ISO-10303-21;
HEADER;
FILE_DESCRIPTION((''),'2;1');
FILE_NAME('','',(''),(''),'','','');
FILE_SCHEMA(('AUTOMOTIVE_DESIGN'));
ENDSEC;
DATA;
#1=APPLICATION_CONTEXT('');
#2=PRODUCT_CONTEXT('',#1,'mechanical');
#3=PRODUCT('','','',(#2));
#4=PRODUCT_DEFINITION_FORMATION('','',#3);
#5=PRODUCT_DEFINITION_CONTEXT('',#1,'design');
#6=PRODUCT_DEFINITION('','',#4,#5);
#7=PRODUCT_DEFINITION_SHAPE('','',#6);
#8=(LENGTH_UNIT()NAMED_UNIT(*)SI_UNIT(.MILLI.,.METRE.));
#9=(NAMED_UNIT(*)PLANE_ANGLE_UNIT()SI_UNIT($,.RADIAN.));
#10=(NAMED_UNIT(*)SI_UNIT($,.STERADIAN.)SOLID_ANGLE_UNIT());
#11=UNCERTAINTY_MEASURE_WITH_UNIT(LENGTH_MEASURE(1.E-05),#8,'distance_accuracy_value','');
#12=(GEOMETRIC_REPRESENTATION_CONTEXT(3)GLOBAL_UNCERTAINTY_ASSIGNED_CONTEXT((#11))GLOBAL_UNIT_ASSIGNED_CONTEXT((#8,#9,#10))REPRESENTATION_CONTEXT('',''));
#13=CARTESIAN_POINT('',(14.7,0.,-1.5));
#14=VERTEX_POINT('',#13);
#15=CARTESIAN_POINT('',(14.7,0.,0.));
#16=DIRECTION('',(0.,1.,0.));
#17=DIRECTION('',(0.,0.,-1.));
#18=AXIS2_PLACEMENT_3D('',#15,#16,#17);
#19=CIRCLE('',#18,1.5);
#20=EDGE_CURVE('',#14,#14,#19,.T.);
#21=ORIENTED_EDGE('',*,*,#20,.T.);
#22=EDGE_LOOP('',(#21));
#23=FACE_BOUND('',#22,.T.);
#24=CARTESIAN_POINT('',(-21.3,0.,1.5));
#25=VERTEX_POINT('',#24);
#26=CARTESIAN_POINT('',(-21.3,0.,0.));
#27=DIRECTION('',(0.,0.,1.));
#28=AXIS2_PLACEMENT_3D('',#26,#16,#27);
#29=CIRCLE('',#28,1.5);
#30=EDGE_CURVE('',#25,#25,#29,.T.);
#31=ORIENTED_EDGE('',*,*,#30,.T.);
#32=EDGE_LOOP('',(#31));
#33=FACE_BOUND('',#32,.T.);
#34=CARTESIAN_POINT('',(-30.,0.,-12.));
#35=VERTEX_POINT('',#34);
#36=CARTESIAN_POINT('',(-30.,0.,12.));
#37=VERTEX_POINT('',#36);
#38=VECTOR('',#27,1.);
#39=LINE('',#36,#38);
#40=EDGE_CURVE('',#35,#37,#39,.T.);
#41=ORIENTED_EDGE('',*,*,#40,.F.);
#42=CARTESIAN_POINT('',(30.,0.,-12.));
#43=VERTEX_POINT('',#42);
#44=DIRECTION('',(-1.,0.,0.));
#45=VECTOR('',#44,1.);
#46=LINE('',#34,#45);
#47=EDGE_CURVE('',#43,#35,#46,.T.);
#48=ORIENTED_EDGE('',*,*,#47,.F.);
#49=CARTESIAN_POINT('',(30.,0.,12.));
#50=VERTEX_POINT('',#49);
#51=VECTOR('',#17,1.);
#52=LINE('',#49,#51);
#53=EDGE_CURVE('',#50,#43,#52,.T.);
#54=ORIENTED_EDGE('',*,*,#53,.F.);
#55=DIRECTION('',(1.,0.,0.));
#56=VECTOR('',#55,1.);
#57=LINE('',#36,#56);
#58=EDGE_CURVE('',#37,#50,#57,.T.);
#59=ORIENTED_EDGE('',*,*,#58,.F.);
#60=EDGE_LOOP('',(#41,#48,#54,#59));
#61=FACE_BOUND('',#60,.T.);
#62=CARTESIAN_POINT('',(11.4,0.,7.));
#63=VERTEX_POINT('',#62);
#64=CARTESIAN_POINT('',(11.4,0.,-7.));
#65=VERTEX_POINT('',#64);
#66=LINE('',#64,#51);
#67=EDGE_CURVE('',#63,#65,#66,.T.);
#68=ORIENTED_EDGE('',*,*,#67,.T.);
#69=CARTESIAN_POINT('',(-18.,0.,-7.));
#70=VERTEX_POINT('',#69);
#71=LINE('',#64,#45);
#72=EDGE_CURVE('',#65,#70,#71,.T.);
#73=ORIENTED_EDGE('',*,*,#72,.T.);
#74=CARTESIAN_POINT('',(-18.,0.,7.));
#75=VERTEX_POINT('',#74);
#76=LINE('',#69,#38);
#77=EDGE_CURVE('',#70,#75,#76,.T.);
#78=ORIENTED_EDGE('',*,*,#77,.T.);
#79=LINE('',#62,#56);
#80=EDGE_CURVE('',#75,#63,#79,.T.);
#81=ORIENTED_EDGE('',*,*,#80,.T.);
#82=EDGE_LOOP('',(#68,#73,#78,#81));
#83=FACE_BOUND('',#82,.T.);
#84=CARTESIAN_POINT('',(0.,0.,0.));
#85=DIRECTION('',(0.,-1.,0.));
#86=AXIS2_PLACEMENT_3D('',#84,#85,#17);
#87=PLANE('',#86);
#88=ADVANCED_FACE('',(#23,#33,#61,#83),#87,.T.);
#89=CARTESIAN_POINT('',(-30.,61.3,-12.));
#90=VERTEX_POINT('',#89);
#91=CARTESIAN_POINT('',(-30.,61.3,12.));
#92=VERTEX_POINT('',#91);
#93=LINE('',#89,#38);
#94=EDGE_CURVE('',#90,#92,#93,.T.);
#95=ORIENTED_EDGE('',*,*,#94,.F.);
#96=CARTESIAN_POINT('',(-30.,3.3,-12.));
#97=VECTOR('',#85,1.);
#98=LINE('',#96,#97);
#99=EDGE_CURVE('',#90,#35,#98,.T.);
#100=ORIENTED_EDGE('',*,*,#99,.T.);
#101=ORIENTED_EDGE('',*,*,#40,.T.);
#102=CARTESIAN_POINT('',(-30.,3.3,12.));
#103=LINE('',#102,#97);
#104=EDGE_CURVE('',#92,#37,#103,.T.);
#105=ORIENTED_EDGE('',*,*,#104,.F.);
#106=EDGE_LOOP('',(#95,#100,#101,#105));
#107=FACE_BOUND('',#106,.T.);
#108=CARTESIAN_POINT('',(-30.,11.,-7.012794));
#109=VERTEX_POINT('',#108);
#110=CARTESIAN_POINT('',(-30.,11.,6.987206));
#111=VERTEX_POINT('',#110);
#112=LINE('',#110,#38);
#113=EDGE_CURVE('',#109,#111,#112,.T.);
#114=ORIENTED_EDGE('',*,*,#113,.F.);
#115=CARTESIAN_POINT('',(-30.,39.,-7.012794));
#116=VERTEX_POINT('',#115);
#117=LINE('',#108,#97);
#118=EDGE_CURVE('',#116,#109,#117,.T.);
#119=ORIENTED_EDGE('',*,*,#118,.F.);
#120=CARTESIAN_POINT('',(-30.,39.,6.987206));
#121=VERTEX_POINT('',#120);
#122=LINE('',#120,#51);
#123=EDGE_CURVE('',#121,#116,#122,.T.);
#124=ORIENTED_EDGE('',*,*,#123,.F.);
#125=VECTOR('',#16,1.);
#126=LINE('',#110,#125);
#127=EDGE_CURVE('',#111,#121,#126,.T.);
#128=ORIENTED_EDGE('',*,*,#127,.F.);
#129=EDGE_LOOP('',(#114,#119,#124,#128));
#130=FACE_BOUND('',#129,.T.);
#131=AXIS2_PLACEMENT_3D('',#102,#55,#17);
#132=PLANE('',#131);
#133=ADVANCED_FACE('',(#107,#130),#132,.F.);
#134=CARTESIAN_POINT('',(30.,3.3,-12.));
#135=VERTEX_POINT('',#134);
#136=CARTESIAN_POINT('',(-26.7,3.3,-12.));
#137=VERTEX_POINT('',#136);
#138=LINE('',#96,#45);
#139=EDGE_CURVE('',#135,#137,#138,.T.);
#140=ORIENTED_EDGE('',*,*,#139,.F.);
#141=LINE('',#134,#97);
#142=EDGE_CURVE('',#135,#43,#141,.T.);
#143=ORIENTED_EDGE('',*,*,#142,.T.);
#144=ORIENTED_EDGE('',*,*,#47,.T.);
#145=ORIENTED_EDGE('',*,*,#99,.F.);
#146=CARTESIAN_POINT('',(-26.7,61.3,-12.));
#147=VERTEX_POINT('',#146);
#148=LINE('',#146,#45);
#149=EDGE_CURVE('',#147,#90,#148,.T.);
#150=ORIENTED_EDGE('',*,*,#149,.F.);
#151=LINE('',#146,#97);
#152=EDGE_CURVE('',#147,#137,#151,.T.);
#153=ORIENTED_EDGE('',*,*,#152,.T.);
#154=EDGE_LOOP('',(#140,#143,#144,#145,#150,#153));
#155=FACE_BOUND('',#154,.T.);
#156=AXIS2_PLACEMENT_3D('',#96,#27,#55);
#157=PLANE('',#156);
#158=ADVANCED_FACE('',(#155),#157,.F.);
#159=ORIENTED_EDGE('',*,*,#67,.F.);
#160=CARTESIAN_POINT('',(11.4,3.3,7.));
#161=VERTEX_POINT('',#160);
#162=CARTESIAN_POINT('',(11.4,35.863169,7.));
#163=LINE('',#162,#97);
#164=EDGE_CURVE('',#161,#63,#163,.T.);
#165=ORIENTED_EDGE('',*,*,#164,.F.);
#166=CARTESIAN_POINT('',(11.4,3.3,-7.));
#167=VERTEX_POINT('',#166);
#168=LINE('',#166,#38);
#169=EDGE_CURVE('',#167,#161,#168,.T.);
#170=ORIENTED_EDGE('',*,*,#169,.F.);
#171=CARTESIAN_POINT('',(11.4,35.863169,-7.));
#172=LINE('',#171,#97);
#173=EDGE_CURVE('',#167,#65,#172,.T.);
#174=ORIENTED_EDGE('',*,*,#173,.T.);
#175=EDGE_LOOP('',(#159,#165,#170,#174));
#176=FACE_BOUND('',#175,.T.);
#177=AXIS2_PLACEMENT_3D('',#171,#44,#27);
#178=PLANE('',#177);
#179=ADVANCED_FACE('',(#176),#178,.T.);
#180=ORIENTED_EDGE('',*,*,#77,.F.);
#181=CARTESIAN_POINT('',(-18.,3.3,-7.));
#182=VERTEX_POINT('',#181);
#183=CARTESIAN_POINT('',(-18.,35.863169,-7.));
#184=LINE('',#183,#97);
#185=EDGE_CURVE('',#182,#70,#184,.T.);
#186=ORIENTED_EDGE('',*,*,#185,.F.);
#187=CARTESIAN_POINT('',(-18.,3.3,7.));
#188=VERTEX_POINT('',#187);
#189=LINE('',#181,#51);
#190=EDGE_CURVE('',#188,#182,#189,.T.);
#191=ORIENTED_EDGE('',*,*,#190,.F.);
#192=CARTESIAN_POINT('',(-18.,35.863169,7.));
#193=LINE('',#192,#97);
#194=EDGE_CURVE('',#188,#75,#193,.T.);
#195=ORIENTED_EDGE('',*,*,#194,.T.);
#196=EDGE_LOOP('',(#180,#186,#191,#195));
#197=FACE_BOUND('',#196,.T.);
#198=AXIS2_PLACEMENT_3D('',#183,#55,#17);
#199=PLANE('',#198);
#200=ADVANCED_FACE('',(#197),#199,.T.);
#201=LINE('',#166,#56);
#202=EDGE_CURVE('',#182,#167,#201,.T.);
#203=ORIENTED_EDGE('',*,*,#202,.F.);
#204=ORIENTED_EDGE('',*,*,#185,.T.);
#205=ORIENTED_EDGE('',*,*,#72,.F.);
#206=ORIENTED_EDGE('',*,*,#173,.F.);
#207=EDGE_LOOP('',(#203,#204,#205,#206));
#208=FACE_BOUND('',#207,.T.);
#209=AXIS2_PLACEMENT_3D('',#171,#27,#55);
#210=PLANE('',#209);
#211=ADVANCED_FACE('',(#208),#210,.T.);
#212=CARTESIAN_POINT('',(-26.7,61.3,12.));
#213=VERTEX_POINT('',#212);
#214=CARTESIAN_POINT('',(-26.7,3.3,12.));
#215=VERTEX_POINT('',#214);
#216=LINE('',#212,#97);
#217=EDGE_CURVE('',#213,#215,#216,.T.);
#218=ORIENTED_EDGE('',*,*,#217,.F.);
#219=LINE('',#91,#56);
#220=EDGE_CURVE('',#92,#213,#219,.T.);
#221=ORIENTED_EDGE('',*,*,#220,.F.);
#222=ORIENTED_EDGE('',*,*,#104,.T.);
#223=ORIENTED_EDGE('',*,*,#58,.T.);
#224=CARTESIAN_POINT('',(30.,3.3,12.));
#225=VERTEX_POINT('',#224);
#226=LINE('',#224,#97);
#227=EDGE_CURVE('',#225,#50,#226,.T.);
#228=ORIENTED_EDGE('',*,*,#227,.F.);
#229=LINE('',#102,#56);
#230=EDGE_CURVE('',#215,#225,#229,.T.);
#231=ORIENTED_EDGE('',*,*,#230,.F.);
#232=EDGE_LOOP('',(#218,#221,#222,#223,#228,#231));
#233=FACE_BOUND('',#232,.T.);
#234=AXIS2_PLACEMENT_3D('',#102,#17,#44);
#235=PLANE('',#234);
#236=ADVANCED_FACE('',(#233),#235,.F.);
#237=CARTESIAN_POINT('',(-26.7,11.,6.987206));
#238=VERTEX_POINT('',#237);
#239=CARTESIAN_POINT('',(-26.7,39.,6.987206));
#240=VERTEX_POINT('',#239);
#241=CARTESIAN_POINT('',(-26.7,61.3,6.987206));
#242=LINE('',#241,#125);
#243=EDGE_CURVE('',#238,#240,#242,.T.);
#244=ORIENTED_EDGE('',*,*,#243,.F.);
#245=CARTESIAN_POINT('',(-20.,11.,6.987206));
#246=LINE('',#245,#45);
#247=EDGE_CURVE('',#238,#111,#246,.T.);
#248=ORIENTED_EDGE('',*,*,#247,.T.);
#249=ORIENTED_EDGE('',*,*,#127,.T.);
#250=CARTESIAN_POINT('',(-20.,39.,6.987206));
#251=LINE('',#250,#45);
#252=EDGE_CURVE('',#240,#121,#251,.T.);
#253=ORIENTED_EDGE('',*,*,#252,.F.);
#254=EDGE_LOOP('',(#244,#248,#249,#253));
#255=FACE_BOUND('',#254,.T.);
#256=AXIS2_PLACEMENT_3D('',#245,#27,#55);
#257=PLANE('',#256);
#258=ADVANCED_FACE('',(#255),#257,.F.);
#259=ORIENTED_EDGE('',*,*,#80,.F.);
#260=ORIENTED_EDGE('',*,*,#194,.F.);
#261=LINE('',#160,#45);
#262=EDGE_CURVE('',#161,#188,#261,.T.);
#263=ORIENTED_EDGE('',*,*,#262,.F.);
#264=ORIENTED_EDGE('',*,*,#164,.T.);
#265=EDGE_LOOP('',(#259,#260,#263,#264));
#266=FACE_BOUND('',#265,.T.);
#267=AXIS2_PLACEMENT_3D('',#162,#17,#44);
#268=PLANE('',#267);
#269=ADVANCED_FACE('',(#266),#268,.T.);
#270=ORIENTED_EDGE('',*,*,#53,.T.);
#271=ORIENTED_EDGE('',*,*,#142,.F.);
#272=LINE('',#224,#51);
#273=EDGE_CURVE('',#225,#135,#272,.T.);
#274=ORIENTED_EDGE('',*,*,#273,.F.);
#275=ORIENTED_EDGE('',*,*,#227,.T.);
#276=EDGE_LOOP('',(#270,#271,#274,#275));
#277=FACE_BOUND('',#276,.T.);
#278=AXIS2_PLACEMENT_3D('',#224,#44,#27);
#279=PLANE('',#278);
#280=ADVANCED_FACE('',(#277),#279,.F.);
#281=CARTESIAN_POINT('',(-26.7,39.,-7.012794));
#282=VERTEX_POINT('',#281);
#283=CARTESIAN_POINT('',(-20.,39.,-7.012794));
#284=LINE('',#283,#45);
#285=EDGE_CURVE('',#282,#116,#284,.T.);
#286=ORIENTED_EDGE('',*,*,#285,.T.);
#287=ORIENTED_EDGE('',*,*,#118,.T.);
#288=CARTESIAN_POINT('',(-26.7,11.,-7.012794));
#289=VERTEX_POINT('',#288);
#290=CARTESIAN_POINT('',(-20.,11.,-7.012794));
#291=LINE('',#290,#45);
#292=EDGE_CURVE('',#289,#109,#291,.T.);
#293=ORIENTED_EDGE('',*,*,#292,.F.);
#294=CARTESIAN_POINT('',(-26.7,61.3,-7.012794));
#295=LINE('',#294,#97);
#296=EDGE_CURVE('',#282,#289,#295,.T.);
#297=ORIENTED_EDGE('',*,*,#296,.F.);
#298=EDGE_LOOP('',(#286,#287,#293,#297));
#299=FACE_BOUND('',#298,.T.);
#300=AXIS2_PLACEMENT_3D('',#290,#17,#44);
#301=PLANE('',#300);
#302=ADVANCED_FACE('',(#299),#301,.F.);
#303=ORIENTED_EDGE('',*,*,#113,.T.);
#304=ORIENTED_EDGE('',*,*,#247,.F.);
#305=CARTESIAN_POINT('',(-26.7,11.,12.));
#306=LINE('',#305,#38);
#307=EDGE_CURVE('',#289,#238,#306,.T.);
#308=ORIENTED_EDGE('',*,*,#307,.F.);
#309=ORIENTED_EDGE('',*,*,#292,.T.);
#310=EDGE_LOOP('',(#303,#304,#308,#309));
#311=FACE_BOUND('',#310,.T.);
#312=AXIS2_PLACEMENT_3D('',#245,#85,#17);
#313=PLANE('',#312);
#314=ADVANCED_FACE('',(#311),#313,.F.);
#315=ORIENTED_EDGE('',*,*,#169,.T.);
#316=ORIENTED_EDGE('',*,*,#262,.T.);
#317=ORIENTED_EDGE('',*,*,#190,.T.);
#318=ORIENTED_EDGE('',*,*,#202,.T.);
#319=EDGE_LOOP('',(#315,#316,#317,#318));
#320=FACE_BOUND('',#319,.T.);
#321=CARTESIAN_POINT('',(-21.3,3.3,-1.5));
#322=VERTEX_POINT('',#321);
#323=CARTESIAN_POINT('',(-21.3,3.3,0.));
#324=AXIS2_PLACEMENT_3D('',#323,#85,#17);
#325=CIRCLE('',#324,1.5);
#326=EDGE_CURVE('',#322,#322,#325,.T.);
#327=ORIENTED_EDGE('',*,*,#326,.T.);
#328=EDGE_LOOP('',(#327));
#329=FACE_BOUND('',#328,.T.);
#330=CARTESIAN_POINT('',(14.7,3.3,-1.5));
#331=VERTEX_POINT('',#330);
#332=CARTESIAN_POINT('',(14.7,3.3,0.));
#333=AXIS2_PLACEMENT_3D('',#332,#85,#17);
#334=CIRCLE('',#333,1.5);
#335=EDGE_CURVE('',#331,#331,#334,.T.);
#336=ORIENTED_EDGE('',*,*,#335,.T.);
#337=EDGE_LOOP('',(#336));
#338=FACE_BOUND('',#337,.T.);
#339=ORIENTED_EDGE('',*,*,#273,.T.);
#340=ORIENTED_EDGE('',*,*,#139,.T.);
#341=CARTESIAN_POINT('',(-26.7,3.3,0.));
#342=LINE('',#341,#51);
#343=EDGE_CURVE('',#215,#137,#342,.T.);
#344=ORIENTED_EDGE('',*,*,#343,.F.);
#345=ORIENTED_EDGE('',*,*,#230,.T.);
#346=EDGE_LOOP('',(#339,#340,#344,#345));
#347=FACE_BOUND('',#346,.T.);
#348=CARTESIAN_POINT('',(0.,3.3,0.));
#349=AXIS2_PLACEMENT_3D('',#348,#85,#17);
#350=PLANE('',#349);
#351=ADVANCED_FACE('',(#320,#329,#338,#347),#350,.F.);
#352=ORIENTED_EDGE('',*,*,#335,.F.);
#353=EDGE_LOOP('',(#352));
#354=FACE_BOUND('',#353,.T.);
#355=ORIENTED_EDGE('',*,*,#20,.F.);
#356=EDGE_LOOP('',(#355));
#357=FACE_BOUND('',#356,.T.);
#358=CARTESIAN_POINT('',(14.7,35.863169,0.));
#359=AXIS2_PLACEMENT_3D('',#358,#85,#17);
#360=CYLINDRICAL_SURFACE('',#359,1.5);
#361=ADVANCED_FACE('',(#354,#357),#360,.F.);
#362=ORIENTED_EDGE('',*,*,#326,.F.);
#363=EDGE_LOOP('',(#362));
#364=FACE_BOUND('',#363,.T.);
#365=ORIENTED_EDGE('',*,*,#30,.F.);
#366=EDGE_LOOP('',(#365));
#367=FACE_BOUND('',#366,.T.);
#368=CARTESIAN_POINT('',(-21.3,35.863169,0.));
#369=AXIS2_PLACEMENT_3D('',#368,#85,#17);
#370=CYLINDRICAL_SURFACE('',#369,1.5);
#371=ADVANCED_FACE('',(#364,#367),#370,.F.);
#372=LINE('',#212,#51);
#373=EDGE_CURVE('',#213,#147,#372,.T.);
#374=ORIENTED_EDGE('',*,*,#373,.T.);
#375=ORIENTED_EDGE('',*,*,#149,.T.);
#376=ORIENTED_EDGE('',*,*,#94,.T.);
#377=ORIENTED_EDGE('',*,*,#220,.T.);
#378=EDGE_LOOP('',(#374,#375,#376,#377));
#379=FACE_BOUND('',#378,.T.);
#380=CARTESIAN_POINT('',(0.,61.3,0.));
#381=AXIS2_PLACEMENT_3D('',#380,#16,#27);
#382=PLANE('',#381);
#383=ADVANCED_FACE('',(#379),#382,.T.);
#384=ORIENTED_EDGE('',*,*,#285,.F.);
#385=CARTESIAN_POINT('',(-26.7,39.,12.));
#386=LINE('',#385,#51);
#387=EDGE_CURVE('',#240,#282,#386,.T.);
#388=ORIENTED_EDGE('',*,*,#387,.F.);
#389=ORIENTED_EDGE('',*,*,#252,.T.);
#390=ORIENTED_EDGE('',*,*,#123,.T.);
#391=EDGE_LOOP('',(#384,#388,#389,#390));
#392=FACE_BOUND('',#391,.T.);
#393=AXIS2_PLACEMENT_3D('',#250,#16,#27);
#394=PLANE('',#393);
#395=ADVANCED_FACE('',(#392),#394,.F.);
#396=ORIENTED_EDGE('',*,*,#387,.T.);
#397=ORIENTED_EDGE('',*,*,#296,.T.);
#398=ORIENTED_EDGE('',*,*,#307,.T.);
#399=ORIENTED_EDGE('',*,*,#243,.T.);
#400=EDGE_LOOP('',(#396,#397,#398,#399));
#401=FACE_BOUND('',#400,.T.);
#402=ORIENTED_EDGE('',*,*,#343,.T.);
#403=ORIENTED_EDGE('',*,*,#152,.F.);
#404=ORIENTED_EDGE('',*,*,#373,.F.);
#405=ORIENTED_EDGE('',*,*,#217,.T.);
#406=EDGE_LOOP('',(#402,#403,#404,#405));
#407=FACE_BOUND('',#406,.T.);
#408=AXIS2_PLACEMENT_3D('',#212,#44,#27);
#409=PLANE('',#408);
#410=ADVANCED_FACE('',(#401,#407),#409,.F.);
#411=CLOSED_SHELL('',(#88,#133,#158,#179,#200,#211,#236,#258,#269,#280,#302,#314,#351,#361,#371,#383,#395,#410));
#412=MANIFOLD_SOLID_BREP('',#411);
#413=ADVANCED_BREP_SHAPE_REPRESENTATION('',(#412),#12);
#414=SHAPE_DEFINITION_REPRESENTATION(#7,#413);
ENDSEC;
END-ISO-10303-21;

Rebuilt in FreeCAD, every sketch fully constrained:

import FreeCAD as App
import Part
import Sketcher
from FreeCAD import Vector


def add_polygon(sketch, points):
    """Adds a closed chain of lines whose ends are joined by coincident constraints."""
    first, n = sketch.GeometryCount, len(points)
    for a, b in zip(points, points[1:] + points[:1]):
        sketch.addGeometry(Part.LineSegment(App.Vector(*a, 0), App.Vector(*b, 0)), False)
    for i in range(n):
        sketch.addConstraint(Sketcher.Constraint("Coincident", first + i, 2, first + (i + 1) % n, 1))

doc = App.newDocument("Part")
params = doc.addObject("Spreadsheet::Sheet", "Params")
for row, (alias, value) in enumerate([
    ("sketch1_width", "60 mm"),
    ("sketch1_height", "24 mm"),
    ("pad1_length", "3.3 mm"),
    ("sketch2_height", "24 mm"),
    ("sketch2_width", "3.3 mm"),
    ("pad2_length", "61.3 mm"),
    ("sketch3_diameter", "3 mm"),
    ("sketch3_height", "14 mm"),
    ("sketch3_width", "29.4 mm"),
    ("pocket1_length", "3.3 mm"),
    ("sketch4_width", "28 mm"),
    ("sketch4_height", "14 mm"),
    ("pocket2_length", "10 mm"),
], start=1):
    params.set(f"A{row}", alias)
    params.set(f"B{row}", "=" + value)
    params.setAlias(f"B{row}", alias)

body = doc.addObject("PartDesign::Body", "Body")

# Sketch on XZ plane
sketch1 = body.newObject("Sketcher::SketchObject", "Sketch")
sketch1.AttachmentSupport = (doc.getObject("XZ_Plane"), [""])
sketch1.MapMode = "FlatFace"
add_polygon(sketch1, [(-30, -12), (-30, 12), (30, 12), (30, -12)])  # lines 0-3
sketch1.addConstraint(Sketcher.Constraint("Vertical", 0))
sketch1.addConstraint(Sketcher.Constraint("Horizontal", 1))
sketch1.addConstraint(Sketcher.Constraint("Vertical", 2))
sketch1.addConstraint(Sketcher.Constraint("Horizontal", 3))
sketch1.addConstraint(Sketcher.Constraint("Symmetric", 0, 2, 2, 2, -1, 1))
sketch1.addConstraint(Sketcher.Constraint("DistanceX", 1, 1, 1, 2, 60.0))
sketch1.addConstraint(Sketcher.Constraint("DistanceY", 0, 1, 0, 2, 24.0))
sketch1.setExpression("Constraints[9]", "Params.sketch1_width")
sketch1.setExpression("Constraints[10]", "Params.sketch1_height")
pad1 = body.newObject("PartDesign::Pad", "Pad")
pad1.Profile = sketch1
pad1.setExpression("Length", "Params.pad1_length")
pad1.Reversed = True

# Sketch on XZ plane
sketch2 = body.newObject("Sketcher::SketchObject", "Sketch001")
sketch2.AttachmentSupport = (doc.getObject("XZ_Plane"), [""])
sketch2.MapMode = "FlatFace"
add_polygon(sketch2, [(-30, -12), (-30, 12), (-26.7, 12), (-26.7, -12)])  # lines 0-3
sketch2.addConstraint(Sketcher.Constraint("Vertical", 0))
sketch2.addConstraint(Sketcher.Constraint("Horizontal", 1))
sketch2.addConstraint(Sketcher.Constraint("Vertical", 2))
sketch2.addConstraint(Sketcher.Constraint("Horizontal", 3))
sketch2.addConstraint(Sketcher.Constraint("DistanceY", 0, 1, 0, 2, 24.0))
sketch2.addConstraint(Sketcher.Constraint("DistanceX", 1, 1, 1, 2, 3.3))
sketch2.addConstraint(Sketcher.Constraint("DistanceX", 0, 2, -1, 1, 30.0))
sketch2.addConstraint(Sketcher.Constraint("DistanceY", -1, 1, 0, 2, 12.0))
sketch2.setExpression("Constraints[8]", "Params.sketch2_height")
sketch2.setExpression("Constraints[9]", "Params.sketch2_width")
pad2 = body.newObject("PartDesign::Pad", "Pad001")
pad2.Profile = sketch2
pad2.setExpression("Length", "Params.pad2_length")
pad2.Reversed = True

# Sketch on XZ plane
sketch3 = body.newObject("Sketcher::SketchObject", "Sketch002")
sketch3.AttachmentSupport = (doc.getObject("XZ_Plane"), [""])
sketch3.MapMode = "FlatFace"
sketch3.addGeometry(Part.Circle(Vector(-21.3, 0, 0), Vector(0, 0, 1), 1.5), False)  # 0
sketch3.addGeometry(Part.Circle(Vector(14.7, 0, 0), Vector(0, 0, 1), 1.5), False)  # 1
add_polygon(sketch3, [(-18, -7), (-18, 7), (11.4, 7), (11.4, -7)])  # lines 2-5
sketch3.addConstraint(Sketcher.Constraint("Vertical", 2))
sketch3.addConstraint(Sketcher.Constraint("Horizontal", 3))
sketch3.addConstraint(Sketcher.Constraint("Vertical", 4))
sketch3.addConstraint(Sketcher.Constraint("Horizontal", 5))
sketch3.addConstraint(Sketcher.Constraint("Equal", 0, 1))
sketch3.addConstraint(Sketcher.Constraint("PointOnObject", 0, 3, -1))
sketch3.addConstraint(Sketcher.Constraint("PointOnObject", 1, 3, -1))
sketch3.addConstraint(Sketcher.Constraint("Diameter", 0, 3.0))
sketch3.addConstraint(Sketcher.Constraint("DistanceY", 2, 1, 2, 2, 14.0))
sketch3.addConstraint(Sketcher.Constraint("DistanceX", 3, 1, 3, 2, 29.4))
sketch3.addConstraint(Sketcher.Constraint("DistanceX", 2, 2, -1, 1, 18.0))
sketch3.addConstraint(Sketcher.Constraint("DistanceY", -1, 1, 2, 2, 7.0))
sketch3.addConstraint(Sketcher.Constraint("DistanceX", 0, 3, 1, 3, 36.0))
sketch3.addConstraint(Sketcher.Constraint("DistanceX", 0, 3, -1, 1, 21.3))
sketch3.setExpression("Constraints[11]", "Params.sketch3_diameter")
sketch3.setExpression("Constraints[12]", "Params.sketch3_height")
sketch3.setExpression("Constraints[13]", "Params.sketch3_width")
pocket1 = body.newObject("PartDesign::Pocket", "Pocket")
pocket1.Profile = sketch3
pocket1.setExpression("Length", "Params.pocket1_length")

# Sketch on YZ plane
sketch4 = body.newObject("Sketcher::SketchObject", "Sketch003")
sketch4.AttachmentSupport = (doc.getObject("YZ_Plane"), [""])
sketch4.MapMode = "FlatFace"
sketch4.AttachmentOffset = App.Placement(Vector(0, 0, -30), App.Rotation())
add_polygon(sketch4, [(39, -7), (11, -7), (11, 7), (39, 7)])  # lines 0-3
sketch4.addConstraint(Sketcher.Constraint("Horizontal", 0))
sketch4.addConstraint(Sketcher.Constraint("Vertical", 1))
sketch4.addConstraint(Sketcher.Constraint("Horizontal", 2))
sketch4.addConstraint(Sketcher.Constraint("Vertical", 3))
sketch4.addConstraint(Sketcher.Constraint("DistanceX", 0, 2, 0, 1, 28.0))
sketch4.addConstraint(Sketcher.Constraint("DistanceY", 1, 1, 1, 2, 14.0))
sketch4.addConstraint(Sketcher.Constraint("DistanceX", -1, 1, 0, 2, 11.0))
sketch4.addConstraint(Sketcher.Constraint("DistanceY", 0, 2, -1, 1, 7.012794))
sketch4.setExpression("Constraints[8]", "Params.sketch4_width")
sketch4.setExpression("Constraints[9]", "Params.sketch4_height")
pocket2 = body.newObject("PartDesign::Pocket", "Pocket001")
pocket2.Profile = sketch4
pocket2.setExpression("Length", "Params.pocket2_length")
pocket2.Reversed = True

doc.recompute()
